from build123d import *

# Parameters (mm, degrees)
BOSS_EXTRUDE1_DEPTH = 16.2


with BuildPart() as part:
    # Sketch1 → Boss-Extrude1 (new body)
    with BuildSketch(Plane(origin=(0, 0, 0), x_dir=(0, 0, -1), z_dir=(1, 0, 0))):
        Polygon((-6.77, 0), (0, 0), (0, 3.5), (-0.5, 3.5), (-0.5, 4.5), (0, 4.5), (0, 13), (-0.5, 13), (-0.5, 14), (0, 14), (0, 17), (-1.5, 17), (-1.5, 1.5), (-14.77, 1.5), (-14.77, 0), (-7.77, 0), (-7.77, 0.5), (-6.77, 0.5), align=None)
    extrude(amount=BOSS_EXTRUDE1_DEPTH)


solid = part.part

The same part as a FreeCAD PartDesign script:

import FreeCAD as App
import Part
import Sketcher

V = App.Vector


def add_polygon(sketch, points):
    """Adds a closed chain of lines whose ends are joined by coincident constraints."""
    first, n = sketch.GeometryCount, len(points)
    for a, b in zip(points, points[1:] + points[:1]):
        sketch.addGeometry(Part.LineSegment(App.Vector(*a, 0), App.Vector(*b, 0)), False)
    for i in range(n):
        sketch.addConstraint(Sketcher.Constraint("Coincident", first + i, 2, first + (i + 1) % n, 1))

doc = App.newDocument("Part")
body = doc.addObject("PartDesign::Body", "Body")

# Sketch on YZ plane
sketch1 = body.newObject("Sketcher::SketchObject", "Sketch")
sketch1.AttachmentSupport = (doc.getObject("YZ_Plane"), [""])
sketch1.MapMode = "FlatFace"
add_polygon(sketch1, [(0, 6.8), (0, 0), (3.5, 0), (3.5, 0.5), (4.5, 0.5), (4.5, 0), (13, 0), (13, 0.5), (14, 0.5), (14, 0), (17, 0), (17, 1.5), (1.5, 1.5), (1.5, 14.8), (0, 14.8), (0, 7.8), (0.5, 7.8), (0.5, 6.8)])  # lines 0-17
sketch1.addConstraint([
    Sketcher.Constraint("Vertical", 0),
    Sketcher.Constraint("Horizontal", 1),
    Sketcher.Constraint("Vertical", 2),
    Sketcher.Constraint("Horizontal", 3),
    Sketcher.Constraint("Vertical", 4),
    Sketcher.Constraint("Horizontal", 5),
    Sketcher.Constraint("Vertical", 6),
    Sketcher.Constraint("Horizontal", 7),
    Sketcher.Constraint("Vertical", 8),
    Sketcher.Constraint("Horizontal", 9),
    Sketcher.Constraint("Vertical", 10),
    Sketcher.Constraint("Horizontal", 11),
    Sketcher.Constraint("Vertical", 12),
    Sketcher.Constraint("Horizontal", 13),
    Sketcher.Constraint("Vertical", 14),
    Sketcher.Constraint("Horizontal", 15),
    Sketcher.Constraint("Vertical", 16),
    Sketcher.Constraint("Horizontal", 17),
    Sketcher.Constraint("Coincident", 0, 2, -1, 1),
    Sketcher.Constraint("PointOnObject", 4, 2, -1),
    Sketcher.Constraint("PointOnObject", 8, 2, -1),
    Sketcher.Constraint("PointOnObject", 13, 2, -2),
    Sketcher.Constraint("Horizontal", 3, 2, 6, 2),
    Sketcher.Constraint("Equal", 3, 7),
    Sketcher.Constraint("Equal", 17, 2),
    Sketcher.Constraint("Equal", 13, 10),
    Sketcher.Constraint("Equal", 7, 16),
    Sketcher.Constraint("DistanceX", 3, 1, 3, 2, 1.0),
    Sketcher.Constraint("DistanceX", 9, 1, 9, 2, 3.0),
    Sketcher.Constraint("DistanceY", 14, 2, 14, 1, 7.0),
    Sketcher.Constraint("DistanceX", 1, 1, 1, 2, 3.5),
    Sketcher.Constraint("DistanceX", 5, 1, 5, 2, 8.5),
    Sketcher.Constraint("DistanceX", 11, 2, 11, 1, 15.5),
    Sketcher.Constraint("DistanceX", 15, 1, 15, 2, 0.5),
    Sketcher.Constraint("DistanceY", 0, 2, 0, 1, 6.77),
])
pad1 = body.newObject("PartDesign::Pad", "Pad")
pad1.Profile = sketch1
pad1.Length = 16.2

doc.recompute()
